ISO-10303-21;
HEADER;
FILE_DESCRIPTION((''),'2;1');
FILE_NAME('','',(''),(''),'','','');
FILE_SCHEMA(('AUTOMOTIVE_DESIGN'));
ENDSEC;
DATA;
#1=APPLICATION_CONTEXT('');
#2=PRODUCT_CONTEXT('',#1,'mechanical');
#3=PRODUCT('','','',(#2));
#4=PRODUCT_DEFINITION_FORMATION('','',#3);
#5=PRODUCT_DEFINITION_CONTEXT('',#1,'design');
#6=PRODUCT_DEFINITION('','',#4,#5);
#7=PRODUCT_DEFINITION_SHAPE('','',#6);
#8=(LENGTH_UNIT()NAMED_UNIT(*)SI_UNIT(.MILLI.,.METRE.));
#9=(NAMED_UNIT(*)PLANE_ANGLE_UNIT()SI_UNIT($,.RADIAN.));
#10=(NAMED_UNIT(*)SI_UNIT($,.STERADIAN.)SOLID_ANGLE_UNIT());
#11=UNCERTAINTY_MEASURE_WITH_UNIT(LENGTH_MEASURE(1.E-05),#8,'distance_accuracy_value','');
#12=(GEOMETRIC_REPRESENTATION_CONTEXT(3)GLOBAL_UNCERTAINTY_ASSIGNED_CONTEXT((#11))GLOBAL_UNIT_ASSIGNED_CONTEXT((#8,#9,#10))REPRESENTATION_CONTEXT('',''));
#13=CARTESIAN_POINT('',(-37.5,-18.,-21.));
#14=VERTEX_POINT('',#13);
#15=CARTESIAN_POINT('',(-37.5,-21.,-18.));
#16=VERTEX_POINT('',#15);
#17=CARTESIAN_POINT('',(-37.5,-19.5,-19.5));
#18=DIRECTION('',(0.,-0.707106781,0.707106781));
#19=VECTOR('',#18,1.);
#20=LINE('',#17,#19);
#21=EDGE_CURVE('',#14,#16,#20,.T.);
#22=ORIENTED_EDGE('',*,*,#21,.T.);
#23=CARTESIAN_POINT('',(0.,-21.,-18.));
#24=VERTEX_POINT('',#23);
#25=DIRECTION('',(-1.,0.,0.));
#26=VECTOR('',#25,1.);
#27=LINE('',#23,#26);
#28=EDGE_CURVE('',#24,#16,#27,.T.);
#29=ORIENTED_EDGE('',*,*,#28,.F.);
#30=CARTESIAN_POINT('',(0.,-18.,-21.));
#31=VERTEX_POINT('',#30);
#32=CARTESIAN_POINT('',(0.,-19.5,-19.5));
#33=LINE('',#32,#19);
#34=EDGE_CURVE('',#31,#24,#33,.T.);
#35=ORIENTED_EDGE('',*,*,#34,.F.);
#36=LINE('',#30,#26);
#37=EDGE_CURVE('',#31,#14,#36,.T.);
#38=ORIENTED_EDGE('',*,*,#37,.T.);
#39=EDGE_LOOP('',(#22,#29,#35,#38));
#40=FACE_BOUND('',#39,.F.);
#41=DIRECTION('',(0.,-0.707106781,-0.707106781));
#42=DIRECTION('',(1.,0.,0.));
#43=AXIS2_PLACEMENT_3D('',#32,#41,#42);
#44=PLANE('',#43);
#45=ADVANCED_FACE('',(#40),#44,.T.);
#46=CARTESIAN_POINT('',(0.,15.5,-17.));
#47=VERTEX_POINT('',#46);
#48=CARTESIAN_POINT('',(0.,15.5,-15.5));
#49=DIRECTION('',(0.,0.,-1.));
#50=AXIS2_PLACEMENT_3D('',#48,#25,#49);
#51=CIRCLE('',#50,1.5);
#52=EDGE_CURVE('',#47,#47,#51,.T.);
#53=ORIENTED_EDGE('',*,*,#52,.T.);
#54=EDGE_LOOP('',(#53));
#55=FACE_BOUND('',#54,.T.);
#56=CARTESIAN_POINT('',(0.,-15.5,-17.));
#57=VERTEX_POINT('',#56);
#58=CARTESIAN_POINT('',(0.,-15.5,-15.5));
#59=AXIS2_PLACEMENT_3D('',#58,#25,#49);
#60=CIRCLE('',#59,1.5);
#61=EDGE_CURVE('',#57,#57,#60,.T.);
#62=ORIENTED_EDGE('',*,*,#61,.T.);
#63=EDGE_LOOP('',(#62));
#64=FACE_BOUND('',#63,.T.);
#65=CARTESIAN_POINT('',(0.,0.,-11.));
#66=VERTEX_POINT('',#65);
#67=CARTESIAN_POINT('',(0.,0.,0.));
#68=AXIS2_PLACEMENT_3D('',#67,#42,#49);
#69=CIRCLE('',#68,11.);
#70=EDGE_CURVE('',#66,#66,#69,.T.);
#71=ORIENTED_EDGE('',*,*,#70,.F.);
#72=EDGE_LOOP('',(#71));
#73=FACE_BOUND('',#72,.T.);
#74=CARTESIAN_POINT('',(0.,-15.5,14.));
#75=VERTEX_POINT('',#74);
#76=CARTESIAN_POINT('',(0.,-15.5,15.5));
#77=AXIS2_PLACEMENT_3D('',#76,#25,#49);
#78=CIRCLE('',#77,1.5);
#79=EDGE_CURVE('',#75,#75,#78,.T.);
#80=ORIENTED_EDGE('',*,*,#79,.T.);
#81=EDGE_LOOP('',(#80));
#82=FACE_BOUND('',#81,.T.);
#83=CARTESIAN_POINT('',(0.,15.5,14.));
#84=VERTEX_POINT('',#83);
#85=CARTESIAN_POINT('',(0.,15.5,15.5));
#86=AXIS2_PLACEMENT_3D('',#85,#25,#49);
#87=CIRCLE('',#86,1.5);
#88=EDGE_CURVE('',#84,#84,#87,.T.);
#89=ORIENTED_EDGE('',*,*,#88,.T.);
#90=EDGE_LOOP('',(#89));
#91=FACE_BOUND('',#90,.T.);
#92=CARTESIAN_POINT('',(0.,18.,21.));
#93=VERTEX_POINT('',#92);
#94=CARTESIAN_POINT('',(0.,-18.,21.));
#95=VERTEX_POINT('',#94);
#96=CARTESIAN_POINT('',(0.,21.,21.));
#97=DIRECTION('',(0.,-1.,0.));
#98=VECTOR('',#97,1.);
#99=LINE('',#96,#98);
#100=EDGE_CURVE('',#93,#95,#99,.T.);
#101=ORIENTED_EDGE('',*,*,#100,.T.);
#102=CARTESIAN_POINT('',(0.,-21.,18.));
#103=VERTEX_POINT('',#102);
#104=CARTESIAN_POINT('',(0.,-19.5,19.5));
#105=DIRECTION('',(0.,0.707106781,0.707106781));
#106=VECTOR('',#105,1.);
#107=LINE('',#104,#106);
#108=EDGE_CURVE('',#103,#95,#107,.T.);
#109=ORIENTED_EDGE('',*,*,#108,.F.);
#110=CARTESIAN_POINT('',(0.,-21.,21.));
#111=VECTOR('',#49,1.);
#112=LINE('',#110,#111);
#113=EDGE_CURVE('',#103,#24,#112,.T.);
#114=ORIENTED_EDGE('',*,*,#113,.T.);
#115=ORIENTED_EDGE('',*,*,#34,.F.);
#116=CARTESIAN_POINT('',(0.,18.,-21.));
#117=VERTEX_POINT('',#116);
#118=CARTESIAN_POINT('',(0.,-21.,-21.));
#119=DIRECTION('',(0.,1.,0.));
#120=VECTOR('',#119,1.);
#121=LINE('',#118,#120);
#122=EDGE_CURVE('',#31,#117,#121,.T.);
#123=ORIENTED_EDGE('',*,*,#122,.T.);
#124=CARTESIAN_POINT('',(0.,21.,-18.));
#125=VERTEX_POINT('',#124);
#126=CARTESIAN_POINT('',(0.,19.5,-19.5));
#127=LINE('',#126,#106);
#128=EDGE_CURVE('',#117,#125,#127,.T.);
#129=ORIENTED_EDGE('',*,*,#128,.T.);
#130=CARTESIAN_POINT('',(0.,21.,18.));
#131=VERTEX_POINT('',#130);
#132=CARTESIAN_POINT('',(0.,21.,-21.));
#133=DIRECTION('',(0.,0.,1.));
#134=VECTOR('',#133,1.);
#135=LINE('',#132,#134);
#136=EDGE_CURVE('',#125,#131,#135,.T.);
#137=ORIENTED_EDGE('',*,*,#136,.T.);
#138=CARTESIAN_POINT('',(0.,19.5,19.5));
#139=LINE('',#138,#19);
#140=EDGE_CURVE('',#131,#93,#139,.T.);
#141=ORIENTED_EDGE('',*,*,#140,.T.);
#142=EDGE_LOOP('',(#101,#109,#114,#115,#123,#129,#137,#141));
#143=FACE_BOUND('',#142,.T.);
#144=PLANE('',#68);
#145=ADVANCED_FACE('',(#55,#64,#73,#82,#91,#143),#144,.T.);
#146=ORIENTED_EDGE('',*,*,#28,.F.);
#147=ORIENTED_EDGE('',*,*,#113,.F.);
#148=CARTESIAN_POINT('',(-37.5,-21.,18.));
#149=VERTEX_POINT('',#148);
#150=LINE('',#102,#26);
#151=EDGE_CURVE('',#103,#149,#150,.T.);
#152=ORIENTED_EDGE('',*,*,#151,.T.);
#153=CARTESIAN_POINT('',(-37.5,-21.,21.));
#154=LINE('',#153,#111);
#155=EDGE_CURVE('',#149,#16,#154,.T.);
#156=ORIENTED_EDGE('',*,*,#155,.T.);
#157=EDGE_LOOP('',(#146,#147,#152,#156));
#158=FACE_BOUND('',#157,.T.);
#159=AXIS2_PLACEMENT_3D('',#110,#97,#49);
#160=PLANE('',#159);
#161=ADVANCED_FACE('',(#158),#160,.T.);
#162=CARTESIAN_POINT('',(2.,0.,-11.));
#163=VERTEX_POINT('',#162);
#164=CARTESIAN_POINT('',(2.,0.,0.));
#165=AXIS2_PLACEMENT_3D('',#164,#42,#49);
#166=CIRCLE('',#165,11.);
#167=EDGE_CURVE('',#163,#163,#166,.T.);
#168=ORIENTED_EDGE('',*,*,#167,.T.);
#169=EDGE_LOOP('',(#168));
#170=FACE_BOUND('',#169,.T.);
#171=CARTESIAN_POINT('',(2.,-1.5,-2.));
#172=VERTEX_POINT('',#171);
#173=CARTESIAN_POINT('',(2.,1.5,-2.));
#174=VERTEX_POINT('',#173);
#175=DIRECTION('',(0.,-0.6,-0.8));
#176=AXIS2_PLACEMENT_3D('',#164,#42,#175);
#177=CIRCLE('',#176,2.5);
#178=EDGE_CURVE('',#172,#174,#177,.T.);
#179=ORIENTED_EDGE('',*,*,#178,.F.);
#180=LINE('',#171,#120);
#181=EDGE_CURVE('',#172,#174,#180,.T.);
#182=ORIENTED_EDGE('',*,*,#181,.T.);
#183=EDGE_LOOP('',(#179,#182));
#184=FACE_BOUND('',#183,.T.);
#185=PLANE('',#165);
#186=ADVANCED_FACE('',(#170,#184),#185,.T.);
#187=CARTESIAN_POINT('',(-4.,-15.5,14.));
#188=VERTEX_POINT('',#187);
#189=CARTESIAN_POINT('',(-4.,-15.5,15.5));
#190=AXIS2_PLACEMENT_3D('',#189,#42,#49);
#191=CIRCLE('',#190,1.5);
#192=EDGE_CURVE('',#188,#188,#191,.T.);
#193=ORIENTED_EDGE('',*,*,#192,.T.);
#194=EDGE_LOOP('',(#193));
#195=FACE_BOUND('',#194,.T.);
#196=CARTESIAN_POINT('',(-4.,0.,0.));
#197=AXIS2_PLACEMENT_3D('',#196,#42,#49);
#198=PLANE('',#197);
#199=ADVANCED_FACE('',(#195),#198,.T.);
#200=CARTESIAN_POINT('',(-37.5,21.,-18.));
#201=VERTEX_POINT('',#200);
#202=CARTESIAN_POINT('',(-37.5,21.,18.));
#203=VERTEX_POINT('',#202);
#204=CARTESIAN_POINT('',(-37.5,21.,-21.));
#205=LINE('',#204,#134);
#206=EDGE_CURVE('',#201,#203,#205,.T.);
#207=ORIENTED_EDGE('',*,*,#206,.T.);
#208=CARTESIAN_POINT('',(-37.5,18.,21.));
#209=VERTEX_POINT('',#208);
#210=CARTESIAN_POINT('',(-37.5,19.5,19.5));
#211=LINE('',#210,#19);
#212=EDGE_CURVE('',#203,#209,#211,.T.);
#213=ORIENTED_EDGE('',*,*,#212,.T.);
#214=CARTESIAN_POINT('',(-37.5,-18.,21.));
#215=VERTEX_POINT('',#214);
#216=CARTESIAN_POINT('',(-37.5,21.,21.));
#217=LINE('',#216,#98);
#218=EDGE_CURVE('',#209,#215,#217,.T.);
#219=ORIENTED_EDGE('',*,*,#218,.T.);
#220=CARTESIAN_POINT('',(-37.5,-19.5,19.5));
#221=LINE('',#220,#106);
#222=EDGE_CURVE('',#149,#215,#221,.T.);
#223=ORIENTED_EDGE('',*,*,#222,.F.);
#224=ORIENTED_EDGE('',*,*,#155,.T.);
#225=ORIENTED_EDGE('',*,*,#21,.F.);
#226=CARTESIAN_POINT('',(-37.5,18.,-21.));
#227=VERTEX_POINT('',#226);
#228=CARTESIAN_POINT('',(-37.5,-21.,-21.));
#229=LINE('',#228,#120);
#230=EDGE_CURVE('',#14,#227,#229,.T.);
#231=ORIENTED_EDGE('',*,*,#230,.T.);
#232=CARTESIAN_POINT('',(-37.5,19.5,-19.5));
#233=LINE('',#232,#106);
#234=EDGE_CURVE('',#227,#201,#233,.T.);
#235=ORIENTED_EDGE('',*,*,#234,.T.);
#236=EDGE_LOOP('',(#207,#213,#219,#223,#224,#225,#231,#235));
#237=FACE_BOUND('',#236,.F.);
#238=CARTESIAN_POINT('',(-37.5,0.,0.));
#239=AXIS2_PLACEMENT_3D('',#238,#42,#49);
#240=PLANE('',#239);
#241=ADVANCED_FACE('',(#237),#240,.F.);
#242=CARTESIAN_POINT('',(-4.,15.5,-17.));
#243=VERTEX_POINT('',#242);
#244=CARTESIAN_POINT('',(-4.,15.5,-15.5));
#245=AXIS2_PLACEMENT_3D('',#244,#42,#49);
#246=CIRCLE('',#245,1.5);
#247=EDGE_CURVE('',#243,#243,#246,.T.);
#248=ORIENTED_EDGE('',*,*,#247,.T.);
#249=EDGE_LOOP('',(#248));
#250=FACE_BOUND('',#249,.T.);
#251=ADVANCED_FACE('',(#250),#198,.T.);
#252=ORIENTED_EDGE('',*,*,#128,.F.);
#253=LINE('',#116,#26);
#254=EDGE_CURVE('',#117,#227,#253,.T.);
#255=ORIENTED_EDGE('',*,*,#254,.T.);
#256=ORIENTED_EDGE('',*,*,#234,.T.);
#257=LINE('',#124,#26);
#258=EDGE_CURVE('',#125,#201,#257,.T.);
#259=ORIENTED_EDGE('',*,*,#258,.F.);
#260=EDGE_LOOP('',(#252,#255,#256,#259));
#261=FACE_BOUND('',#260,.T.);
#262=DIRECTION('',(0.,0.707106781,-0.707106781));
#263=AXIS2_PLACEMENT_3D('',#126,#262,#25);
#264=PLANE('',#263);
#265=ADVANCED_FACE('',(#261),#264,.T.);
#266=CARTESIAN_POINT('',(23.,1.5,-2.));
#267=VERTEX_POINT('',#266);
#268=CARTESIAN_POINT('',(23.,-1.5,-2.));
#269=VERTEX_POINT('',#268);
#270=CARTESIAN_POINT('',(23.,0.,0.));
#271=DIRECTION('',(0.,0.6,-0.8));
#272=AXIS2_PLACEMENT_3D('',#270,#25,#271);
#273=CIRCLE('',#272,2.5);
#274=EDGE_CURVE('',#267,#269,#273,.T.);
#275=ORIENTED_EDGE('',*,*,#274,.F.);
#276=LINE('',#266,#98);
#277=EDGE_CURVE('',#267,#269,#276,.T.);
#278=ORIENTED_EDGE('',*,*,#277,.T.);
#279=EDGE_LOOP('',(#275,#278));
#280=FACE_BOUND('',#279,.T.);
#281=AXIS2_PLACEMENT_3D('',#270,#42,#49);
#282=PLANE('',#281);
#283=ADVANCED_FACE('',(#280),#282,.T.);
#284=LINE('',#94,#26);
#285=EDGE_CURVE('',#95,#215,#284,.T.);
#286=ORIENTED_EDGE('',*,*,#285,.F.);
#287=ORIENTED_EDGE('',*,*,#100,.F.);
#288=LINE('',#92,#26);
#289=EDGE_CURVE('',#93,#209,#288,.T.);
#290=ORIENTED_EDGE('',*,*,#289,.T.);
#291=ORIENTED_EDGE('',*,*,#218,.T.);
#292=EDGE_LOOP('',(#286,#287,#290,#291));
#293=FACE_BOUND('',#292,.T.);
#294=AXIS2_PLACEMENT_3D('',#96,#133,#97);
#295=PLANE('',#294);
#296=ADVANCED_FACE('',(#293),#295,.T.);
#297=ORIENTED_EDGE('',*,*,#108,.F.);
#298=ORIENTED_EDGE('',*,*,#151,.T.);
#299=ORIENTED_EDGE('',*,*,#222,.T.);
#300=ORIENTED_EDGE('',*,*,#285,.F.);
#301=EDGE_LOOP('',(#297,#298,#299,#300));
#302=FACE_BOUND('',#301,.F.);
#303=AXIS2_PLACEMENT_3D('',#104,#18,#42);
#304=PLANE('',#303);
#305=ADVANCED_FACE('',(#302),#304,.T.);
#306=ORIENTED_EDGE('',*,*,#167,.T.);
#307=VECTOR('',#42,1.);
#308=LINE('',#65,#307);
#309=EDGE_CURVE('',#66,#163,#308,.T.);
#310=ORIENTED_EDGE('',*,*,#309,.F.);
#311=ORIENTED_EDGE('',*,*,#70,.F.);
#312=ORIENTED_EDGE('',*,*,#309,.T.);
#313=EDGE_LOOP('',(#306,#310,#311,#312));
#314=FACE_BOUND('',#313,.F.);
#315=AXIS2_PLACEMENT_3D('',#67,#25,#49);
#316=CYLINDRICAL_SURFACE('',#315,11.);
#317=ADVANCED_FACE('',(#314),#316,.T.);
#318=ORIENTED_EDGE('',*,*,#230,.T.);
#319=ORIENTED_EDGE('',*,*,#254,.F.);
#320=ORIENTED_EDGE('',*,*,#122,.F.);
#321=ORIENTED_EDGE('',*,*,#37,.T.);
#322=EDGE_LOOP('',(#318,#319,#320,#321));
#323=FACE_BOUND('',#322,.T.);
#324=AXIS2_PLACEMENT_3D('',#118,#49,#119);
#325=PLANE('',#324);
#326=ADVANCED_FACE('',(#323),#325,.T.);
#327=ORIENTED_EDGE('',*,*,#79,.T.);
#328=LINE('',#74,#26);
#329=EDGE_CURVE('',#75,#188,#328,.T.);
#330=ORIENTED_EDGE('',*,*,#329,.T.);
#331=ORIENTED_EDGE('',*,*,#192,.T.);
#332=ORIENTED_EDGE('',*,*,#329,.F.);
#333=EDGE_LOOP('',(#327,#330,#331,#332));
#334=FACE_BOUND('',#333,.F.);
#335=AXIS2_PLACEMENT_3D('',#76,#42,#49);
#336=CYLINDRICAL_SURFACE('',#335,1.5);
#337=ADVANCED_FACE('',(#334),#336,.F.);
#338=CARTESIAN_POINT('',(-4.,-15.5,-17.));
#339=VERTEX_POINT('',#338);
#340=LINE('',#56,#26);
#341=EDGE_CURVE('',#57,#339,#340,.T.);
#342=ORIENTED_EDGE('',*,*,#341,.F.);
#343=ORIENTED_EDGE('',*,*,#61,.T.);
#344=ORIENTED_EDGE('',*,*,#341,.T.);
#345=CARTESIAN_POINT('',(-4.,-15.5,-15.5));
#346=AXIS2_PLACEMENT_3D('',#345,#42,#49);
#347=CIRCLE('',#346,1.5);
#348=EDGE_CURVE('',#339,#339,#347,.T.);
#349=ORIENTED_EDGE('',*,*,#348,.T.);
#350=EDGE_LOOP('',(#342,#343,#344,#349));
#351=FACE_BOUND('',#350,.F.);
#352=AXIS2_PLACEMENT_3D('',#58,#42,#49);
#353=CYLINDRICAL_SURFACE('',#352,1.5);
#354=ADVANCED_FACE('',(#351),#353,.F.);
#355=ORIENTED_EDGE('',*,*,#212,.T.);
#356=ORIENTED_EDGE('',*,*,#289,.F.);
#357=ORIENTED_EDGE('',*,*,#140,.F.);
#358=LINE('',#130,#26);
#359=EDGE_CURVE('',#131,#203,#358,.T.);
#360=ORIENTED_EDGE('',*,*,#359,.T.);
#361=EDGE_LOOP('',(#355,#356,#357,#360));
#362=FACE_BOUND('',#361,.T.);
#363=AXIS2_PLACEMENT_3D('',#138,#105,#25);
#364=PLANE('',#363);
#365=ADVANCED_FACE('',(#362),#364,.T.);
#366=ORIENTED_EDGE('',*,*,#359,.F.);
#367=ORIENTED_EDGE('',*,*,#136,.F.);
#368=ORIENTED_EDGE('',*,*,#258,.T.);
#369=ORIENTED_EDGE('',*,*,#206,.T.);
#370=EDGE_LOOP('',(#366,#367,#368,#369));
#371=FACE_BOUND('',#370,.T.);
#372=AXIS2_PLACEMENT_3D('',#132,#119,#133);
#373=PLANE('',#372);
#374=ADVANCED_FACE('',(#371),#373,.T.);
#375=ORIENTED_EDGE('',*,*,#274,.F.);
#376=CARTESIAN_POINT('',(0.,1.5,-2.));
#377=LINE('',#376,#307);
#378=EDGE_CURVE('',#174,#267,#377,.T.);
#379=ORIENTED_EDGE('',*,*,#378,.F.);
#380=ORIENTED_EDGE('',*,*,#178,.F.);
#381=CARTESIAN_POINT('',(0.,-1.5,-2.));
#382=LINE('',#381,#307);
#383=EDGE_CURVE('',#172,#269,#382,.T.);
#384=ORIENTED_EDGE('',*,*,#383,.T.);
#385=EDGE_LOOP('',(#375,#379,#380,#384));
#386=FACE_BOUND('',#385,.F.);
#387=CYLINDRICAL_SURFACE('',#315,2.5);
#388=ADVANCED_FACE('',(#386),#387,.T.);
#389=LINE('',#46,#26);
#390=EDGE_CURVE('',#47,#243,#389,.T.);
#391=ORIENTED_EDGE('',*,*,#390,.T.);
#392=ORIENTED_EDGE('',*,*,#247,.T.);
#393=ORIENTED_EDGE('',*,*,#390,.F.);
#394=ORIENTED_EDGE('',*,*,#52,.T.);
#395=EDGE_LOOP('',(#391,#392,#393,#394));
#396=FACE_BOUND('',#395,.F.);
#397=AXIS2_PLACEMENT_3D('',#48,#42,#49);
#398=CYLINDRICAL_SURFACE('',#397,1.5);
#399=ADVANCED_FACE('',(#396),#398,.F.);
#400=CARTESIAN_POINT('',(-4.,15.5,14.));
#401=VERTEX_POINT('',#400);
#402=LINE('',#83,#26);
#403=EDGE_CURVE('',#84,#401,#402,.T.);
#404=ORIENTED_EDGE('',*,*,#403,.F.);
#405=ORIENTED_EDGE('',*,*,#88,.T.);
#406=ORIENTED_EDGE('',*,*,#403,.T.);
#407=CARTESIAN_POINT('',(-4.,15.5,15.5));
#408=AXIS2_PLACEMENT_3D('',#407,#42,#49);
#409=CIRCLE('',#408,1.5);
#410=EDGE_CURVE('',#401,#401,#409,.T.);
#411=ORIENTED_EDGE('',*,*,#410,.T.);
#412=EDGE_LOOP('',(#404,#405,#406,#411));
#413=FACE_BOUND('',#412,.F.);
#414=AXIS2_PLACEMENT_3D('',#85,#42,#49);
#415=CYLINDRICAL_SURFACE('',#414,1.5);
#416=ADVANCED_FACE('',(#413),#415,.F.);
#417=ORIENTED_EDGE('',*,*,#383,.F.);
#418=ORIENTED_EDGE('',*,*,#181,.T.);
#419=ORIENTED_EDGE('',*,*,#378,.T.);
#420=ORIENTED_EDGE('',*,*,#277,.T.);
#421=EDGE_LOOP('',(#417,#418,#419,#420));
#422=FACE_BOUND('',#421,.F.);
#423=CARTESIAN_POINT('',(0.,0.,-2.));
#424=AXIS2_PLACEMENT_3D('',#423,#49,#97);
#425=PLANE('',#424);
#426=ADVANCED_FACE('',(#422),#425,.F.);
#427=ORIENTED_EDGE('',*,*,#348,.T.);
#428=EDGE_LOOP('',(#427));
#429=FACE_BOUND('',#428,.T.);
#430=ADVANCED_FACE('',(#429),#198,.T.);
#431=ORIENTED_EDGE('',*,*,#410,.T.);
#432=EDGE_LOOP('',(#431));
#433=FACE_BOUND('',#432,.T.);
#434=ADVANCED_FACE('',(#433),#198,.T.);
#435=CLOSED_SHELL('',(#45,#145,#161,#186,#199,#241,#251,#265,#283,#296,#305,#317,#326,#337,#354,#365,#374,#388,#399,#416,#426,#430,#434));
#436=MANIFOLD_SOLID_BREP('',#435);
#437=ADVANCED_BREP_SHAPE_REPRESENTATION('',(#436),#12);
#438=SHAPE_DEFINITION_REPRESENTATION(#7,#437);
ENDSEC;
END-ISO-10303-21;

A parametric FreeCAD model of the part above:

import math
import FreeCAD as App
import Part
import Sketcher
Q = App.Units.Quantity


def edges_at(feature, points):
    """Names of the edges that pass closest to the given points."""
    edges = feature.Shape.Edges
    near = lambda p: min(range(len(edges)), key=lambda i: edges[i].distToShape(Part.Vertex(*p))[0])
    return sorted({f"Edge{near(p) + 1}" for p in points})

doc = App.newDocument("Part")
params = doc.addObject("Spreadsheet::Sheet", "Params")
for row, (alias, value) in enumerate([
    ("sketch1_width", "42 mm"),
    ("pad1_length", "37.5 mm"),
    ("sketch2_diameter", "3 mm"),
    ("pocket1_length", "4 mm"),
    ("sketch3_diameter", "22 mm"),
    ("pad2_length", "2 mm"),
    ("sketch4_radius", "2.5 mm"),
    ("sketch4_width", "3 mm"),
    ("pad3_length", "23 mm"),
    ("chamfer_size", "3 mm"),
], start=1):
    params.set(f"A{row}", alias)
    params.set(f"B{row}", "=" + value)
    params.setAlias(f"B{row}", alias)

body = doc.addObject("PartDesign::Body", "Body")

# Sketch on YZ plane
sketch1 = body.newObject("Sketcher::SketchObject", "Sketch")
sketch1.AttachmentSupport = (doc.getObject("YZ_Plane"), [""])
sketch1.MapMode = "FlatFace"
sketch1.addGeometry(Part.LineSegment(App.Vector(-21, -21, 0), App.Vector(21, -21, 0)), False)
sketch1.addGeometry(Part.LineSegment(App.Vector(21, -21, 0), App.Vector(21, 21, 0)), False)
sketch1.addGeometry(Part.LineSegment(App.Vector(21, 21, 0), App.Vector(-21, 21, 0)), False)
sketch1.addGeometry(Part.LineSegment(App.Vector(-21, 21, 0), App.Vector(-21, -21, 0)), False)
sketch1.addConstraint(Sketcher.Constraint("Coincident", 0, 2, 1, 1))
sketch1.addConstraint(Sketcher.Constraint("Coincident", 1, 2, 2, 1))
sketch1.addConstraint(Sketcher.Constraint("Coincident", 2, 2, 3, 1))
sketch1.addConstraint(Sketcher.Constraint("Coincident", 3, 2, 0, 1))
sketch1.addConstraint(Sketcher.Constraint("Horizontal", 0))
sketch1.addConstraint(Sketcher.Constraint("Vertical", 1))
sketch1.addConstraint(Sketcher.Constraint("Horizontal", 2))
sketch1.addConstraint(Sketcher.Constraint("Vertical", 3))
sketch1.addConstraint(Sketcher.Constraint("Symmetric", 0, 2, 2, 2, -1, 1))
sketch1.addConstraint(Sketcher.Constraint("Equal", 2, 1))
sketch1.addConstraint(Sketcher.Constraint("DistanceX", 0, 1, 0, 2, Q("42 mm")))
sketch1.setExpression("Constraints[10]", "Params.sketch1_width")
pad1 = body.newObject("PartDesign::Pad", "Pad")
pad1.Profile = sketch1
pad1.setExpression("Length", "Params.pad1_length")
pad1.Reversed = True

# Sketch on YZ plane
sketch2 = body.newObject("Sketcher::SketchObject", "Sketch001")
sketch2.AttachmentSupport = (doc.getObject("YZ_Plane"), [""])
sketch2.MapMode = "FlatFace"
sketch2.addGeometry(Part.Circle(App.Vector(-15.5, 15.5, 0), App.Vector(0, 0, 1), 1.5), False)
sketch2.addGeometry(Part.Circle(App.Vector(-15.5, -15.5, 0), App.Vector(0, 0, 1), 1.5), False)
sketch2.addGeometry(Part.Circle(App.Vector(15.5, 15.5, 0), App.Vector(0, 0, 1), 1.5), False)
sketch2.addGeometry(Part.Circle(App.Vector(15.5, -15.5, 0), App.Vector(0, 0, 1), 1.5), False)
sketch2.addConstraint(Sketcher.Constraint("Equal", 0, 1))
sketch2.addConstraint(Sketcher.Constraint("Equal", 1, 2))
sketch2.addConstraint(Sketcher.Constraint("Equal", 2, 3))
sketch2.addConstraint(Sketcher.Constraint("Symmetric", 1, 3, 2, 3, -1, 1))
sketch2.addConstraint(Sketcher.Constraint("Symmetric", 0, 3, 3, 3, -1, 1))
sketch2.addConstraint(Sketcher.Constraint("Symmetric", 0, 3, 2, 3, -2))
sketch2.addConstraint(Sketcher.Constraint("Diameter", 0, Q("3 mm")))
sketch2.addConstraint(Sketcher.Constraint("DistanceY", 1, 3, 0, 3, Q("31 mm")))
sketch2.addConstraint(Sketcher.Constraint("DistanceX", 0, 3, 2, 3, Q("31 mm")))
sketch2.setExpression("Constraints[6]", "Params.sketch2_diameter")
pocket1 = body.newObject("PartDesign::Pocket", "Pocket")
pocket1.Profile = sketch2
pocket1.setExpression("Length", "Params.pocket1_length")

# Sketch on YZ plane
sketch3 = body.newObject("Sketcher::SketchObject", "Sketch002")
sketch3.AttachmentSupport = (doc.getObject("YZ_Plane"), [""])
sketch3.MapMode = "FlatFace"
sketch3.addGeometry(Part.Circle(App.Vector(0, 0, 0), App.Vector(0, 0, 1), 11), False)
sketch3.addConstraint(Sketcher.Constraint("Coincident", 0, 3, -1, 1))
sketch3.addConstraint(Sketcher.Constraint("Diameter", 0, Q("22 mm")))
sketch3.setExpression("Constraints[1]", "Params.sketch3_diameter")
pad2 = body.newObject("PartDesign::Pad", "Pad001")
pad2.Profile = sketch3
pad2.setExpression("Length", "Params.pad2_length")

# Sketch on YZ plane
sketch4 = body.newObject("Sketcher::SketchObject", "Sketch003")
sketch4.AttachmentSupport = (doc.getObject("YZ_Plane"), [""])
sketch4.MapMode = "FlatFace"
sketch4.addGeometry(Part.ArcOfCircle(Part.Circle(App.Vector(0, 0, 0), App.Vector(0, 0, 1), 2.5), math.radians(-126.869898), math.radians(-53.130102)), False)
sketch4.addGeometry(Part.LineSegment(App.Vector(1.5, -2, 0), App.Vector(-1.5, -2, 0)), False)
sketch4.addConstraint(Sketcher.Constraint("Coincident", 0, 1, 1, 2))
sketch4.addConstraint(Sketcher.Constraint("Coincident", 1, 1, 0, 2))
sketch4.addConstraint(Sketcher.Constraint("Horizontal", 1))
sketch4.addConstraint(Sketcher.Constraint("Coincident", 0, 3, -1, 1))
sketch4.addConstraint(Sketcher.Constraint("Radius", 0, Q("2.5 mm")))
sketch4.addConstraint(Sketcher.Constraint("DistanceX", 1, 2, 1, 1, Q("3 mm")))
sketch4.setExpression("Constraints[4]", "Params.sketch4_radius")
sketch4.setExpression("Constraints[5]", "Params.sketch4_width")
pad3 = body.newObject("PartDesign::Pad", "Pad002")
pad3.Profile = sketch4
pad3.setExpression("Length", "Params.pad3_length")
doc.recompute()

chamfer = body.newObject("PartDesign::Chamfer", "Chamfer")
chamfer.Base = (pad3, edges_at(pad3, [
    (-18.75, 21, 21),
    (-18.75, 21, -21),
    (-18.75, -21, -21),
    (-18.75, -21, 21),
]))
chamfer.setExpression("Size", "Params.chamfer_size")

doc.recompute()
